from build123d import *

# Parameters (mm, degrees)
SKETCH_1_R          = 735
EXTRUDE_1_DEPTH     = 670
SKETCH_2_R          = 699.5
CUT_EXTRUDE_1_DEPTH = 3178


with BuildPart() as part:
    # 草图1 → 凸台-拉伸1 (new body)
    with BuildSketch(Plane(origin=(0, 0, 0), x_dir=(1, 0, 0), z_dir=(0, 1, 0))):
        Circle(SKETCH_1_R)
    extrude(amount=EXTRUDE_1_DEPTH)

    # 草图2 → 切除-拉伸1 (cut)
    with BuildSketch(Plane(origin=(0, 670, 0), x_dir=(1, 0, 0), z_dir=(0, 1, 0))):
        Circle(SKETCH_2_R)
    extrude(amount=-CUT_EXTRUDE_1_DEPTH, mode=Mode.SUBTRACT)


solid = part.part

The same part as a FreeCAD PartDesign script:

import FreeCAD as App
import Part
import Sketcher

V = App.Vector

doc = App.newDocument("Part")
body = doc.addObject("PartDesign::Body", "Body")

sketch1 = body.newObject("Sketcher::SketchObject", "Sketch")
sketch1.AttachmentSupport = (doc.getObject("XZ_Plane"), [""])
sketch1.MapMode = "FlatFace"
sketch1.addGeometry(Part.Circle(V(0, 0, 0), V(0, 0, 1), 735), False)
sketch1.addConstraint([
    Sketcher.Constraint("Coincident", 0, 3, -1, 1),
    Sketcher.Constraint("Diameter", 0, 1470.0),
])
pad1 = body.newObject("PartDesign::Pad", "Pad")
pad1.Profile = sketch1
pad1.Length = 670
pad1.Reversed = True

sketch2 = body.newObject("Sketcher::SketchObject", "Sketch001")
sketch2.AttachmentSupport = (doc.getObject("XZ_Plane"), [""])
sketch2.MapMode = "FlatFace"
sketch2.AttachmentOffset = App.Placement(V(0, 0, -670), App.Rotation())
sketch2.addGeometry(Part.Circle(V(0, 0, 0), V(0, 0, 1), 700), False)
sketch2.addConstraint([
    Sketcher.Constraint("Coincident", 0, 3, -1, 1),
    Sketcher.Constraint("Diameter", 0, 1399.0),
])
pocket1 = body.newObject("PartDesign::Pocket", "Pocket")
pocket1.Profile = sketch2
pocket1.Length = 3178
pocket1.Reversed = True

doc.recompute()
